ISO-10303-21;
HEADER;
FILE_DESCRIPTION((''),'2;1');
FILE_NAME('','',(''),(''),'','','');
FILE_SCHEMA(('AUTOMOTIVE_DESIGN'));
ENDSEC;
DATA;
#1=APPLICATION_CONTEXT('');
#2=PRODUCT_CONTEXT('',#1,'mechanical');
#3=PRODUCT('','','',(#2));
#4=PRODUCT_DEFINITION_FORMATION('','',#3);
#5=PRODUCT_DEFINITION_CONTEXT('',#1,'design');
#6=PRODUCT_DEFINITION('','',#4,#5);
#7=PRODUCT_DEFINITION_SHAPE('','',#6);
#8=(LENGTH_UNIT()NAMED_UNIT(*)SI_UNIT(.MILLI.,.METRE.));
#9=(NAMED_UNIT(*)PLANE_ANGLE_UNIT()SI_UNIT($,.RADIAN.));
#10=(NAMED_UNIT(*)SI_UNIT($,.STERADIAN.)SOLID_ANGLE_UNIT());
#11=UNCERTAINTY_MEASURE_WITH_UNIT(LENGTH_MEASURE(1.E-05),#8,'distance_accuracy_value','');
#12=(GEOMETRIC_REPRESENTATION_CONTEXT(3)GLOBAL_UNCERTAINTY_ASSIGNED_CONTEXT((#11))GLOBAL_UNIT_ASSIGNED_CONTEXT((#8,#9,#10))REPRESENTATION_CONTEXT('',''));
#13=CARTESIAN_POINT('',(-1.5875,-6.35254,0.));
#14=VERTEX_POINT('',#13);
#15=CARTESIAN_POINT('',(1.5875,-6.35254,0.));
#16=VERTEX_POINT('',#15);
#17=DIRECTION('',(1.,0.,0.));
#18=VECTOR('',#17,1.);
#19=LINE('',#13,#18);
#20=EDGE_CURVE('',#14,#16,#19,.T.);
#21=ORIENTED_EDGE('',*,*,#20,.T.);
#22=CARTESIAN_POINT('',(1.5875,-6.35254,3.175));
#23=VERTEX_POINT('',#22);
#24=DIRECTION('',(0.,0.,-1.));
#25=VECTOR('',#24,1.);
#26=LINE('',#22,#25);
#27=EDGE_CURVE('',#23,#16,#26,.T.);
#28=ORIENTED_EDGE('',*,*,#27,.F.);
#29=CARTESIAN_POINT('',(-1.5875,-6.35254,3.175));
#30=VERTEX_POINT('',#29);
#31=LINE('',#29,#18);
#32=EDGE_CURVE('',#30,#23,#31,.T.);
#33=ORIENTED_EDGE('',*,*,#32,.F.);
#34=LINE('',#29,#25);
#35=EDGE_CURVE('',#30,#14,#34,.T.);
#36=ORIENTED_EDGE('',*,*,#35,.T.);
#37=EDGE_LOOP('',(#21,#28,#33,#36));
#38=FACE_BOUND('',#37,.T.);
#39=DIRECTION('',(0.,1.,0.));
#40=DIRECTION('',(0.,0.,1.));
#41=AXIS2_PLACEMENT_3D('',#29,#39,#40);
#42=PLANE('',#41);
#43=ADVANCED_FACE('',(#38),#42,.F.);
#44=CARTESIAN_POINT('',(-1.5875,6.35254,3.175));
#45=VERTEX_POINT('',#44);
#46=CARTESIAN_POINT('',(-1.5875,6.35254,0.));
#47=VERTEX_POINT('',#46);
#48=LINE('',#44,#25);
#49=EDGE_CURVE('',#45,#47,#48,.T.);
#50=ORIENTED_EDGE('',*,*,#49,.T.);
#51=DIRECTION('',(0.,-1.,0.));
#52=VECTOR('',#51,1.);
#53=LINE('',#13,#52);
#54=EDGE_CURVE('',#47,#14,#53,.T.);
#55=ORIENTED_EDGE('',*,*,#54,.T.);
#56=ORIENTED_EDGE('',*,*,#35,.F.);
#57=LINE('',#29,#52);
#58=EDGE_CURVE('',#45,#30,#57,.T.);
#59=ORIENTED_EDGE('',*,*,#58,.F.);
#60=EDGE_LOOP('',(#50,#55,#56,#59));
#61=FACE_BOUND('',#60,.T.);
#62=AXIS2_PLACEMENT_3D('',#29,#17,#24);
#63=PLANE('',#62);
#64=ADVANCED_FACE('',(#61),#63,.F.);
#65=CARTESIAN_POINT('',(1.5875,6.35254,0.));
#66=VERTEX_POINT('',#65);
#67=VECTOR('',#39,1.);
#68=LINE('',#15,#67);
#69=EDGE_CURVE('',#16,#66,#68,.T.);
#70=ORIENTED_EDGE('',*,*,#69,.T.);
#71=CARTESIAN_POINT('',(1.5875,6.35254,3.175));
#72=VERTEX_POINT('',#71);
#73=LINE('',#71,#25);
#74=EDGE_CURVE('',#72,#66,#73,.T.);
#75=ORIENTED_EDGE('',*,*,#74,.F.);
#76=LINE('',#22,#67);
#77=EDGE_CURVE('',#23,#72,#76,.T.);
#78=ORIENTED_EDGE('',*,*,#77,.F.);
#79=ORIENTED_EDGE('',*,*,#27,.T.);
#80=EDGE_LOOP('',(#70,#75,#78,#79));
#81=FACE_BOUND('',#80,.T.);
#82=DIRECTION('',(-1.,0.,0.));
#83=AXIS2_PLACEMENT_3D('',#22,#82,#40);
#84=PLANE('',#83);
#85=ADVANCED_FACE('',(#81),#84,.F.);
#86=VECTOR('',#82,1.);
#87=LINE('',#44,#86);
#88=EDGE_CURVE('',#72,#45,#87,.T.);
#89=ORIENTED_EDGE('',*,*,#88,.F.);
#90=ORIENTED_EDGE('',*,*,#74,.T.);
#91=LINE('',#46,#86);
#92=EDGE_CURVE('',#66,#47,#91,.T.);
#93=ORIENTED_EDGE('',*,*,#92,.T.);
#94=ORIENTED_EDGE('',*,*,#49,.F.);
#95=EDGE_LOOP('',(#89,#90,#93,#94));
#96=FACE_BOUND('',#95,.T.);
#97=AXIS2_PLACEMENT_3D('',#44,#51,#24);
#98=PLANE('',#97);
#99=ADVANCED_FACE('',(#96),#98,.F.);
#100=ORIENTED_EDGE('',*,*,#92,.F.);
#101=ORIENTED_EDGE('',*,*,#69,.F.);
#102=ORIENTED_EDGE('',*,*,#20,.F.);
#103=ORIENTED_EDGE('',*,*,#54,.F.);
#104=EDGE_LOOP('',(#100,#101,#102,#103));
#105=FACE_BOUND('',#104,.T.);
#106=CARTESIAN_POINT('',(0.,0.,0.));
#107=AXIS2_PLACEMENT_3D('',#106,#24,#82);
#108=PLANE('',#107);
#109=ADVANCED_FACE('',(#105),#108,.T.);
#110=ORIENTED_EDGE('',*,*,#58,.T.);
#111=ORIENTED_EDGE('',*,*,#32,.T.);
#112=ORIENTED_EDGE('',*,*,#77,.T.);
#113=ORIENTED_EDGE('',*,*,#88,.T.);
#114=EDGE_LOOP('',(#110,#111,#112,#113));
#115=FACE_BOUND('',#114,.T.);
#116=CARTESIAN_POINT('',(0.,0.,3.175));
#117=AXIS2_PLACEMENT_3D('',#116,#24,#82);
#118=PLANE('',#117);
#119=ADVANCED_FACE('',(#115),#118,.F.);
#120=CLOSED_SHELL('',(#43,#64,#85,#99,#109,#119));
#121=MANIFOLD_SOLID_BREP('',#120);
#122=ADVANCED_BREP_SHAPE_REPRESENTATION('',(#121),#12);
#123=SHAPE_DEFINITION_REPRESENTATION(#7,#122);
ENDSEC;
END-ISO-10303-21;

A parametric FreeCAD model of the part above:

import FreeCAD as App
import Part
import Sketcher
Q = App.Units.Quantity


def add_polygon(sketch, points):
    """Adds a closed chain of lines whose ends are joined by coincident constraints."""
    first, n = sketch.GeometryCount, len(points)
    for a, b in zip(points, points[1:] + points[:1]):
        sketch.addGeometry(Part.LineSegment(App.Vector(*a, 0), App.Vector(*b, 0)), False)
    for i in range(n):
        sketch.addConstraint(Sketcher.Constraint("Coincident", first + i, 2, first + (i + 1) % n, 1))

doc = App.newDocument("Part")
body = doc.addObject("PartDesign::Body", "Body")

# Sketch on XY plane
sketch1 = body.newObject("Sketcher::SketchObject", "Sketch")
sketch1.AttachmentSupport = (doc.getObject("XY_Plane"), [""])
sketch1.MapMode = "FlatFace"
add_polygon(sketch1, [(-1.5875, 6.35254), (-1.5875, -6.35254), (1.5875, -6.35254), (1.5875, 6.35254)])  # lines 0-3
sketch1.addConstraint([
    Sketcher.Constraint("Vertical", 0),
    Sketcher.Constraint("Horizontal", 1),
    Sketcher.Constraint("Vertical", 2),
    Sketcher.Constraint("Horizontal", 3),
    Sketcher.Constraint("Symmetric", 0, 2, 2, 2, -1, 1),
    Sketcher.Constraint("DistanceX", 1, 1, 1, 2, Q("0.125 in")),
    Sketcher.Constraint("DistanceY", 0, 2, 0, 1, Q("0.5002 in")),
])
pad1 = body.newObject("PartDesign::Pad", "Pad")
pad1.Profile = sketch1
pad1.Length = Q("0.125 in")

doc.recompute()
